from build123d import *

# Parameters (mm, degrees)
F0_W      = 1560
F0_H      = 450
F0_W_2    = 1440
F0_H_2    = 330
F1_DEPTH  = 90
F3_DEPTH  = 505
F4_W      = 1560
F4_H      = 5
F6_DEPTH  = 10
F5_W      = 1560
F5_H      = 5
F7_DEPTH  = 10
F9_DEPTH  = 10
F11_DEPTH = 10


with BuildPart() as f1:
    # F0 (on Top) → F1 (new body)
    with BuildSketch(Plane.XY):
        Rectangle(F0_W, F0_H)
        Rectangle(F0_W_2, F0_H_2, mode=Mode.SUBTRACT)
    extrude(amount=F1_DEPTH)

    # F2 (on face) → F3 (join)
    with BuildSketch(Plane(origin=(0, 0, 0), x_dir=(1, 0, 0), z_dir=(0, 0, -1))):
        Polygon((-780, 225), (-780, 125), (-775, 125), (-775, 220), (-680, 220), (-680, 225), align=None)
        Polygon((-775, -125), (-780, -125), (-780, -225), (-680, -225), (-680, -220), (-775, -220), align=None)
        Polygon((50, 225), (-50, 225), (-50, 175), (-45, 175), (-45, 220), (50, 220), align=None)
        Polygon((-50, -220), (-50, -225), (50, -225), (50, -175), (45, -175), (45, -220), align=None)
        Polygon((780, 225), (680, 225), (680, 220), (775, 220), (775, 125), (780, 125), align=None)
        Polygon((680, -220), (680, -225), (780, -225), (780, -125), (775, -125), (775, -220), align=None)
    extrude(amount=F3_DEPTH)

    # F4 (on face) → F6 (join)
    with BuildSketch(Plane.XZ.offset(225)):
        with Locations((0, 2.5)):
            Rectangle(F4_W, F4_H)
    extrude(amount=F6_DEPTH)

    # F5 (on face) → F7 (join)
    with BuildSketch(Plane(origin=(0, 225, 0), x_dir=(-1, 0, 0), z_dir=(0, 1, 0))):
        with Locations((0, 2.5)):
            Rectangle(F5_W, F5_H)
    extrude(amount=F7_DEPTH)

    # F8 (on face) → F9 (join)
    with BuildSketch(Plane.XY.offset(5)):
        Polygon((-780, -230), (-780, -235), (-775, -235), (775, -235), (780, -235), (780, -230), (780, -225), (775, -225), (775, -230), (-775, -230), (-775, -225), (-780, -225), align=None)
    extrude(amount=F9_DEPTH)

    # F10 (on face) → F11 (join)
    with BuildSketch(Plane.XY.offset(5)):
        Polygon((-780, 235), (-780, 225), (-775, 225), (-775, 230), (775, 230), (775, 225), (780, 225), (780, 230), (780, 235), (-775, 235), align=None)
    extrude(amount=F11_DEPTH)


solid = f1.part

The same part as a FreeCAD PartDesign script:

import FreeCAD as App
import Part
import Sketcher
from FreeCAD import Vector
Q = App.Units.Quantity

doc = App.newDocument("Part")
body = doc.addObject("PartDesign::Body", "Body")

# Sketch on XY plane
sketch1 = doc.addObject("Sketcher::SketchObject", "Sketch")
body.addObject(sketch1)
sketch1.AttachmentSupport = (doc.XY_Plane, [""])
sketch1.MapMode = "FlatFace"
sketch1.addGeometry([
    Part.LineSegment(Vector(-780, 225, 0), Vector(-780, -225, 0)),  # 0
    Part.LineSegment(Vector(-780, -225, 0), Vector(780, -225, 0)),  # 1
    Part.LineSegment(Vector(780, -225, 0), Vector(780, 225, 0)),  # 2
    Part.LineSegment(Vector(780, 225, 0), Vector(-780, 225, 0)),  # 3
    Part.LineSegment(Vector(720, -165, 0), Vector(-720, -165, 0)),  # 4
    Part.LineSegment(Vector(-720, -165, 0), Vector(-720, 165, 0)),  # 5
    Part.LineSegment(Vector(-720, 165, 0), Vector(720, 165, 0)),  # 6
    Part.LineSegment(Vector(720, 165, 0), Vector(720, -165, 0)),  # 7
], False)
sketch1.addConstraint([
    Sketcher.Constraint("Coincident", 0, 2, 1, 1),
    Sketcher.Constraint("Coincident", 1, 2, 2, 1),
    Sketcher.Constraint("Coincident", 2, 2, 3, 1),
    Sketcher.Constraint("Coincident", 3, 2, 0, 1),
    Sketcher.Constraint("Coincident", 4, 2, 5, 1),
    Sketcher.Constraint("Coincident", 5, 2, 6, 1),
    Sketcher.Constraint("Coincident", 6, 2, 7, 1),
    Sketcher.Constraint("Coincident", 7, 2, 4, 1),
    Sketcher.Constraint("Vertical", 0),
    Sketcher.Constraint("Horizontal", 1),
    Sketcher.Constraint("Vertical", 2),
    Sketcher.Constraint("Horizontal", 3),
    Sketcher.Constraint("Horizontal", 4),
    Sketcher.Constraint("Vertical", 5),
    Sketcher.Constraint("Horizontal", 6),
    Sketcher.Constraint("Vertical", 7),
    Sketcher.Constraint("Symmetric", 0, 2, 2, 2, -1, 1),
    Sketcher.Constraint("Symmetric", 4, 2, 6, 2, -1, 1),
    Sketcher.Constraint("DistanceX", 1, 1, 1, 2, Q("1560 mm")),
    Sketcher.Constraint("DistanceX", 4, 2, 4, 1, Q("1440 mm")),
    Sketcher.Constraint("DistanceY", 0, 2, 0, 1, Q("450 mm")),
    Sketcher.Constraint("DistanceY", 5, 1, 5, 2, Q("330 mm")),
])
pad1 = doc.addObject("PartDesign::Pad", "Pad")
body.addObject(pad1)
pad1.Profile = sketch1
pad1.Length = 90

# Sketch on XY plane
sketch2 = doc.addObject("Sketcher::SketchObject", "Sketch001")
body.addObject(sketch2)
sketch2.AttachmentSupport = (doc.XY_Plane, [""])
sketch2.MapMode = "FlatFace"
sketch2.addGeometry([
    Part.LineSegment(Vector(-780, -225, 0), Vector(-780, -125, 0)),  # 0
    Part.LineSegment(Vector(-780, -125, 0), Vector(-775, -125, 0)),  # 1
    Part.LineSegment(Vector(-775, -125, 0), Vector(-775, -220, 0)),  # 2
    Part.LineSegment(Vector(-775, -220, 0), Vector(-680, -220, 0)),  # 3
    Part.LineSegment(Vector(-680, -220, 0), Vector(-680, -225, 0)),  # 4
    Part.LineSegment(Vector(-680, -225, 0), Vector(-780, -225, 0)),  # 5
    Part.LineSegment(Vector(-775, 125, 0), Vector(-780, 125, 0)),  # 6
    Part.LineSegment(Vector(-780, 125, 0), Vector(-780, 225, 0)),  # 7
    Part.LineSegment(Vector(-780, 225, 0), Vector(-680, 225, 0)),  # 8
    Part.LineSegment(Vector(-680, 225, 0), Vector(-680, 220, 0)),  # 9
    Part.LineSegment(Vector(-680, 220, 0), Vector(-775, 220, 0)),  # 10
    Part.LineSegment(Vector(-775, 220, 0), Vector(-775, 125, 0)),  # 11
    Part.LineSegment(Vector(50, -225, 0), Vector(-50, -225, 0)),  # 12
    Part.LineSegment(Vector(-50, -225, 0), Vector(-50, -175, 0)),  # 13
    Part.LineSegment(Vector(-50, -175, 0), Vector(-45, -175, 0)),  # 14
    Part.LineSegment(Vector(-45, -175, 0), Vector(-45, -220, 0)),  # 15
    Part.LineSegment(Vector(-45, -220, 0), Vector(50, -220, 0)),  # 16
    Part.LineSegment(Vector(50, -220, 0), Vector(50, -225, 0)),  # 17
    Part.LineSegment(Vector(-50, 220, 0), Vector(-50, 225, 0)),  # 18
    Part.LineSegment(Vector(-50, 225, 0), Vector(50, 225, 0)),  # 19
    Part.LineSegment(Vector(50, 225, 0), Vector(50, 175, 0)),  # 20
    Part.LineSegment(Vector(50, 175, 0), Vector(45, 175, 0)),  # 21
    Part.LineSegment(Vector(45, 175, 0), Vector(45, 220, 0)),  # 22
    Part.LineSegment(Vector(45, 220, 0), Vector(-50, 220, 0)),  # 23
    Part.LineSegment(Vector(780, -225, 0), Vector(680, -225, 0)),  # 24
    Part.LineSegment(Vector(680, -225, 0), Vector(680, -220, 0)),  # 25
    Part.LineSegment(Vector(680, -220, 0), Vector(775, -220, 0)),  # 26
    Part.LineSegment(Vector(775, -220, 0), Vector(775, -125, 0)),  # 27
    Part.LineSegment(Vector(775, -125, 0), Vector(780, -125, 0)),  # 28
    Part.LineSegment(Vector(780, -125, 0), Vector(780, -225, 0)),  # 29
    Part.LineSegment(Vector(680, 220, 0), Vector(680, 225, 0)),  # 30
    Part.LineSegment(Vector(680, 225, 0), Vector(780, 225, 0)),  # 31
    Part.LineSegment(Vector(780, 225, 0), Vector(780, 125, 0)),  # 32
    Part.LineSegment(Vector(780, 125, 0), Vector(775, 125, 0)),  # 33
    Part.LineSegment(Vector(775, 125, 0), Vector(775, 220, 0)),  # 34
    Part.LineSegment(Vector(775, 220, 0), Vector(680, 220, 0)),  # 35
], False)
sketch2.addConstraint([
    Sketcher.Constraint("Coincident", 0, 2, 1, 1),
    Sketcher.Constraint("Coincident", 1, 2, 2, 1),
    Sketcher.Constraint("Coincident", 2, 2, 3, 1),
    Sketcher.Constraint("Coincident", 3, 2, 4, 1),
    Sketcher.Constraint("Coincident", 4, 2, 5, 1),
    Sketcher.Constraint("Coincident", 5, 2, 0, 1),
    Sketcher.Constraint("Coincident", 6, 2, 7, 1),
    Sketcher.Constraint("Coincident", 7, 2, 8, 1),
    Sketcher.Constraint("Coincident", 8, 2, 9, 1),
    Sketcher.Constraint("Coincident", 9, 2, 10, 1),
    Sketcher.Constraint("Coincident", 10, 2, 11, 1),
    Sketcher.Constraint("Coincident", 11, 2, 6, 1),
    Sketcher.Constraint("Coincident", 12, 2, 13, 1),
    Sketcher.Constraint("Coincident", 13, 2, 14, 1),
    Sketcher.Constraint("Coincident", 14, 2, 15, 1),
    Sketcher.Constraint("Coincident", 15, 2, 16, 1),
    Sketcher.Constraint("Coincident", 16, 2, 17, 1),
    Sketcher.Constraint("Coincident", 17, 2, 12, 1),
    Sketcher.Constraint("Coincident", 18, 2, 19, 1),
    Sketcher.Constraint("Coincident", 19, 2, 20, 1),
    Sketcher.Constraint("Coincident", 20, 2, 21, 1),
    Sketcher.Constraint("Coincident", 21, 2, 22, 1),
    Sketcher.Constraint("Coincident", 22, 2, 23, 1),
    Sketcher.Constraint("Coincident", 23, 2, 18, 1),
    Sketcher.Constraint("Coincident", 24, 2, 25, 1),
    Sketcher.Constraint("Coincident", 25, 2, 26, 1),
    Sketcher.Constraint("Coincident", 26, 2, 27, 1),
    Sketcher.Constraint("Coincident", 27, 2, 28, 1),
    Sketcher.Constraint("Coincident", 28, 2, 29, 1),
    Sketcher.Constraint("Coincident", 29, 2, 24, 1),
    Sketcher.Constraint("Coincident", 30, 2, 31, 1),
    Sketcher.Constraint("Coincident", 31, 2, 32, 1),
    Sketcher.Constraint("Coincident", 32, 2, 33, 1),
    Sketcher.Constraint("Coincident", 33, 2, 34, 1),
    Sketcher.Constraint("Coincident", 34, 2, 35, 1),
    Sketcher.Constraint("Coincident", 35, 2, 30, 1),
    Sketcher.Constraint("Vertical", 0),
    Sketcher.Constraint("Horizontal", 1),
    Sketcher.Constraint("Vertical", 2),
    Sketcher.Constraint("Horizontal", 3),
    Sketcher.Constraint("Vertical", 4),
    Sketcher.Constraint("Horizontal", 5),
    Sketcher.Constraint("Horizontal", 6),
    Sketcher.Constraint("Vertical", 7),
    Sketcher.Constraint("Horizontal", 8),
    Sketcher.Constraint("Vertical", 9),
    Sketcher.Constraint("Horizontal", 10),
    Sketcher.Constraint("Vertical", 11),
    Sketcher.Constraint("Horizontal", 12),
    Sketcher.Constraint("Vertical", 13),
    Sketcher.Constraint("Horizontal", 14),
    Sketcher.Constraint("Vertical", 15),
    Sketcher.Constraint("Horizontal", 16),
    Sketcher.Constraint("Vertical", 17),
    Sketcher.Constraint("Vertical", 18),
    Sketcher.Constraint("Horizontal", 19),
    Sketcher.Constraint("Vertical", 20),
    Sketcher.Constraint("Horizontal", 21),
    Sketcher.Constraint("Vertical", 22),
    Sketcher.Constraint("Horizontal", 23),
    Sketcher.Constraint("Horizontal", 24),
    Sketcher.Constraint("Vertical", 25),
    Sketcher.Constraint("Horizontal", 26),
    Sketcher.Constraint("Vertical", 27),
    Sketcher.Constraint("Horizontal", 28),
    Sketcher.Constraint("Vertical", 29),
    Sketcher.Constraint("Vertical", 30),
    Sketcher.Constraint("Horizontal", 31),
    Sketcher.Constraint("Vertical", 32),
    Sketcher.Constraint("Horizontal", 33),
    Sketcher.Constraint("Vertical", 34),
    Sketcher.Constraint("Horizontal", 35),
    Sketcher.Constraint("Symmetric", 17, 2, 18, 2, -1, 1),
    Sketcher.Constraint("Symmetric", 13, 2, 20, 2, -1, 1),
    Sketcher.Constraint("Symmetric", 15, 2, 22, 2, -1, 1),
    Sketcher.Constraint("Symmetric", 8, 2, 24, 2, -1, 1),
    Sketcher.Constraint("Symmetric", 10, 2, 26, 2, -1, 1),
    Sketcher.Constraint("Symmetric", 6, 2, 28, 2, -1, 1),
    Sketcher.Constraint("Symmetric", 4, 2, 30, 2, -1, 1),
    Sketcher.Constraint("Symmetric", 0, 2, 32, 2, -1, 1),
    Sketcher.Constraint("Symmetric", 2, 2, 34, 2, -1, 1),
    Sketcher.Constraint("Symmetric", 4, 2, 24, 2, -2),
    Sketcher.Constraint("Symmetric", 2, 2, 26, 2, -2),
    Sketcher.Constraint("Symmetric", 0, 2, 28, 2, -2),
    Sketcher.Constraint("Horizontal", 5, 2, 12, 2),
    Sketcher.Constraint("Horizontal", 3, 2, 15, 2),
    Sketcher.Constraint("Vertical", 13, 2, 18, 2),
    Sketcher.Constraint("Equal", 8, 12),
    Sketcher.Constraint("Equal", 6, 14),
    Sketcher.Constraint("Equal", 31, 0),
    Sketcher.Constraint("Equal", 35, 2),
    Sketcher.Constraint("DistanceX", 1, 1, 1, 2, Q("5 mm")),
    Sketcher.Constraint("DistanceX", 3, 1, 3, 2, Q("95 mm")),
    Sketcher.Constraint("DistanceY", 13, 1, 13, 2, Q("50 mm")),
    Sketcher.Constraint("DistanceX", 0, 2, -1, 1, Q("780 mm")),
    Sketcher.Constraint("DistanceY", 0, 2, -1, 1, Q("125 mm")),
])
pad2 = doc.addObject("PartDesign::Pad", "Pad001")
body.addObject(pad2)
pad2.Profile = sketch2
pad2.Length = 505
pad2.Reversed = True

# Sketch on XZ plane
sketch3 = doc.addObject("Sketcher::SketchObject", "Sketch002")
body.addObject(sketch3)
sketch3.AttachmentSupport = (doc.XZ_Plane, [""])
sketch3.MapMode = "FlatFace"
sketch3.AttachmentOffset = App.Placement(Vector(0, 0, 225), App.Rotation())
sketch3.addGeometry([
    Part.LineSegment(Vector(-780, 5, 0), Vector(-780, 0, 0)),
    Part.LineSegment(Vector(-780, 0, 0), Vector(780, 0, 0)),
    Part.LineSegment(Vector(780, 0, 0), Vector(780, 5, 0)),
    Part.LineSegment(Vector(780, 5, 0), Vector(-780, 5, 0)),
], False)
sketch3.addConstraint([
    Sketcher.Constraint("Coincident", 0, 2, 1, 1),
    Sketcher.Constraint("Coincident", 1, 2, 2, 1),
    Sketcher.Constraint("Coincident", 2, 2, 3, 1),
    Sketcher.Constraint("Coincident", 3, 2, 0, 1),
    Sketcher.Constraint("Vertical", 0),
    Sketcher.Constraint("Horizontal", 1),
    Sketcher.Constraint("Vertical", 2),
    Sketcher.Constraint("Horizontal", 3),
    Sketcher.Constraint("Symmetric", 0, 2, 1, 2, -1, 1),
    Sketcher.Constraint("DistanceX", 1, 1, 1, 2, Q("1560 mm")),
    Sketcher.Constraint("DistanceY", 0, 2, 0, 1, Q("5 mm")),
])
pad3 = doc.addObject("PartDesign::Pad", "Pad002")
body.addObject(pad3)
pad3.Profile = sketch3
pad3.Length = 10

# Sketch on XZ plane
sketch4 = doc.addObject("Sketcher::SketchObject", "Sketch003")
body.addObject(sketch4)
sketch4.AttachmentSupport = (doc.XZ_Plane, [""])
sketch4.MapMode = "FlatFace"
sketch4.AttachmentOffset = App.Placement(Vector(0, 0, -225), App.Rotation())
sketch4.addGeometry([
    Part.LineSegment(Vector(780, 5, 0), Vector(780, 0, 0)),
    Part.LineSegment(Vector(780, 0, 0), Vector(-780, 0, 0)),
    Part.LineSegment(Vector(-780, 0, 0), Vector(-780, 5, 0)),
    Part.LineSegment(Vector(-780, 5, 0), Vector(780, 5, 0)),
], False)
sketch4.addConstraint([
    Sketcher.Constraint("Coincident", 0, 2, 1, 1),
    Sketcher.Constraint("Coincident", 1, 2, 2, 1),
    Sketcher.Constraint("Coincident", 2, 2, 3, 1),
    Sketcher.Constraint("Coincident", 3, 2, 0, 1),
    Sketcher.Constraint("Vertical", 0),
    Sketcher.Constraint("Horizontal", 1),
    Sketcher.Constraint("Vertical", 2),
    Sketcher.Constraint("Horizontal", 3),
    Sketcher.Constraint("Symmetric", 0, 2, 1, 2, -1, 1),
    Sketcher.Constraint("DistanceX", 1, 2, 1, 1, Q("1560 mm")),
    Sketcher.Constraint("DistanceY", 0, 2, 0, 1, Q("5 mm")),
])
pad4 = doc.addObject("PartDesign::Pad", "Pad003")
body.addObject(pad4)
pad4.Profile = sketch4
pad4.Length = 10
pad4.Reversed = True

# Sketch on XY plane
sketch5 = doc.addObject("Sketcher::SketchObject", "Sketch004")
body.addObject(sketch5)
sketch5.AttachmentSupport = (doc.XY_Plane, [""])
sketch5.MapMode = "FlatFace"
sketch5.AttachmentOffset = App.Placement(Vector(0, 0, 5), App.Rotation())
sketch5.addGeometry([
    Part.LineSegment(Vector(-780, -235, 0), Vector(780, -235, 0)),  # 0
    Part.LineSegment(Vector(780, -235, 0), Vector(780, -225, 0)),  # 1
    Part.LineSegment(Vector(780, -225, 0), Vector(775, -225, 0)),  # 2
    Part.LineSegment(Vector(775, -225, 0), Vector(775, -230, 0)),  # 3
    Part.LineSegment(Vector(775, -230, 0), Vector(-775, -230, 0)),  # 4
    Part.LineSegment(Vector(-775, -230, 0), Vector(-775, -225, 0)),  # 5
    Part.LineSegment(Vector(-775, -225, 0), Vector(-780, -225, 0)),  # 6
    Part.LineSegment(Vector(-780, -225, 0), Vector(-780, -235, 0)),  # 7
], False)
sketch5.addConstraint([
    Sketcher.Constraint("Coincident", 0, 2, 1, 1),
    Sketcher.Constraint("Coincident", 1, 2, 2, 1),
    Sketcher.Constraint("Coincident", 2, 2, 3, 1),
    Sketcher.Constraint("Coincident", 3, 2, 4, 1),
    Sketcher.Constraint("Coincident", 4, 2, 5, 1),
    Sketcher.Constraint("Coincident", 5, 2, 6, 1),
    Sketcher.Constraint("Coincident", 6, 2, 7, 1),
    Sketcher.Constraint("Coincident", 7, 2, 0, 1),
    Sketcher.Constraint("Horizontal", 0),
    Sketcher.Constraint("Vertical", 1),
    Sketcher.Constraint("Horizontal", 2),
    Sketcher.Constraint("Vertical", 3),
    Sketcher.Constraint("Horizontal", 4),
    Sketcher.Constraint("Vertical", 5),
    Sketcher.Constraint("Horizontal", 6),
    Sketcher.Constraint("Vertical", 7),
    Sketcher.Constraint("Symmetric", 2, 2, 5, 2, -2),
    Sketcher.Constraint("Equal", 2, 6),
    Sketcher.Constraint("Equal", 6, 3),
    Sketcher.Constraint("DistanceX", 0, 1, 0, 2, Q("1560 mm")),
    Sketcher.Constraint("DistanceX", 2, 2, 2, 1, Q("5 mm")),
    Sketcher.Constraint("DistanceY", 1, 1, 1, 2, Q("10 mm")),
    Sketcher.Constraint("DistanceY", 0, 2, -1, 1, Q("235 mm")),
])
pad5 = doc.addObject("PartDesign::Pad", "Pad004")
body.addObject(pad5)
pad5.Profile = sketch5
pad5.Length = 10

# Sketch on XY plane
sketch6 = doc.addObject("Sketcher::SketchObject", "Sketch005")
body.addObject(sketch6)
sketch6.AttachmentSupport = (doc.XY_Plane, [""])
sketch6.MapMode = "FlatFace"
sketch6.AttachmentOffset = App.Placement(Vector(0, 0, 5), App.Rotation())
sketch6.addGeometry([
    Part.LineSegment(Vector(-780, 235, 0), Vector(-780, 225, 0)),  # 0
    Part.LineSegment(Vector(-780, 225, 0), Vector(-775, 225, 0)),  # 1
    Part.LineSegment(Vector(-775, 225, 0), Vector(-775, 230, 0)),  # 2
    Part.LineSegment(Vector(-775, 230, 0), Vector(775, 230, 0)),  # 3
    Part.LineSegment(Vector(775, 230, 0), Vector(775, 225, 0)),  # 4
    Part.LineSegment(Vector(775, 225, 0), Vector(780, 225, 0)),  # 5
    Part.LineSegment(Vector(780, 225, 0), Vector(780, 235, 0)),  # 6
    Part.LineSegment(Vector(780, 235, 0), Vector(-780, 235, 0)),  # 7
], False)
sketch6.addConstraint([
    Sketcher.Constraint("Coincident", 0, 2, 1, 1),
    Sketcher.Constraint("Coincident", 1, 2, 2, 1),
    Sketcher.Constraint("Coincident", 2, 2, 3, 1),
    Sketcher.Constraint("Coincident", 3, 2, 4, 1),
    Sketcher.Constraint("Coincident", 4, 2, 5, 1),
    Sketcher.Constraint("Coincident", 5, 2, 6, 1),
    Sketcher.Constraint("Coincident", 6, 2, 7, 1),
    Sketcher.Constraint("Coincident", 7, 2, 0, 1),
    Sketcher.Constraint("Vertical", 0),
    Sketcher.Constraint("Horizontal", 1),
    Sketcher.Constraint("Vertical", 2),
    Sketcher.Constraint("Horizontal", 3),
    Sketcher.Constraint("Vertical", 4),
    Sketcher.Constraint("Horizontal", 5),
    Sketcher.Constraint("Vertical", 6),
    Sketcher.Constraint("Horizontal", 7),
    Sketcher.Constraint("Symmetric", 1, 2, 4, 2, -2),
    Sketcher.Constraint("Equal", 1, 5),
    Sketcher.Constraint("Equal", 5, 2),
    Sketcher.Constraint("DistanceX", 1, 1, 1, 2, Q("5 mm")),
    Sketcher.Constraint("DistanceX", 3, 1, 3, 2, Q("1550 mm")),
    Sketcher.Constraint("DistanceY", 0, 2, 0, 1, Q("10 mm")),
    Sketcher.Constraint("DistanceY", -1, 1, 0, 2, Q("225 mm")),
])
pad6 = doc.addObject("PartDesign::Pad", "Pad005")
body.addObject(pad6)
pad6.Profile = sketch6
pad6.Length = 10

doc.recompute()
